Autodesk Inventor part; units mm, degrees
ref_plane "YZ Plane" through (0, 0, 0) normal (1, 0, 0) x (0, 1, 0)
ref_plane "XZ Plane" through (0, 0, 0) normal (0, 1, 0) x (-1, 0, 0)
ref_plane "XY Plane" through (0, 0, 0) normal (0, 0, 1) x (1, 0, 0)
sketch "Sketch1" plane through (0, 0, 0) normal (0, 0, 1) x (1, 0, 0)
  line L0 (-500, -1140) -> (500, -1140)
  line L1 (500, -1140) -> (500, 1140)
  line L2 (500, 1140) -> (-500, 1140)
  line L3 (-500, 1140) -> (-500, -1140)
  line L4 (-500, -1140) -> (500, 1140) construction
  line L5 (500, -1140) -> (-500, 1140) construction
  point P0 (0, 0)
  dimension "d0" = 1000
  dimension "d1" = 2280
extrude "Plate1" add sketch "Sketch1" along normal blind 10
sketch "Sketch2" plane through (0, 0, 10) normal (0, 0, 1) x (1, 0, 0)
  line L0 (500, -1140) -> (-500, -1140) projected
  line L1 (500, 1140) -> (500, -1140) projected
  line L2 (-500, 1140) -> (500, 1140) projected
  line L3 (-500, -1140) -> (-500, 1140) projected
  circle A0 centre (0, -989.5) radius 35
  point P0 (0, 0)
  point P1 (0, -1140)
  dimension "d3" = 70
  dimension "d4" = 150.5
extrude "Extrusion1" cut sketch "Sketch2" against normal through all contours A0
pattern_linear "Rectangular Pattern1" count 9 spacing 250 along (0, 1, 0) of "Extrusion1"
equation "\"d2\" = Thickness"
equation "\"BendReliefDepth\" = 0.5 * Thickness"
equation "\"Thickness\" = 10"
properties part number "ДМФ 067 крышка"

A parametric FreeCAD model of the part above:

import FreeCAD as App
import Part
import Sketcher

V = App.Vector
Q = App.Units.Quantity


def add_polygon(sketch, points):
    """Adds a closed chain of lines whose ends are joined by coincident constraints."""
    first, n = sketch.GeometryCount, len(points)
    for a, b in zip(points, points[1:] + points[:1]):
        sketch.addGeometry(Part.LineSegment(App.Vector(*a, 0), App.Vector(*b, 0)), False)
    for i in range(n):
        sketch.addConstraint(Sketcher.Constraint("Coincident", first + i, 2, first + (i + 1) % n, 1))

doc = App.newDocument("Part")
params = doc.addObject("Spreadsheet::Sheet", "Params")
for row, (alias, value) in enumerate([
    ("sketch1_width", "1000 mm"),
    ("sketch1_height", "2280 mm"),
    ("pad1_length", "10 mm"),
    ("sketch2_diameter", "70 mm"),
    ("linearpattern_pitch", "250 mm"),
], start=1):
    params.set(f"A{row}", alias)
    params.set(f"B{row}", "=" + value)
    params.setAlias(f"B{row}", alias)

body = doc.addObject("PartDesign::Body", "Body")

# Sketch on XY plane
sketch1 = body.newObject("Sketcher::SketchObject", "Sketch")
sketch1.AttachmentSupport = (doc.getObject("XY_Plane"), [""])
sketch1.MapMode = "FlatFace"
add_polygon(sketch1, [(-500, 1140), (-500, -1140), (500, -1140), (500, 1140)])  # lines 0-3
sketch1.addConstraint([
    Sketcher.Constraint("Vertical", 0),
    Sketcher.Constraint("Horizontal", 1),
    Sketcher.Constraint("Vertical", 2),
    Sketcher.Constraint("Horizontal", 3),
    Sketcher.Constraint("Symmetric", 0, 2, 2, 2, -1, 1),
    Sketcher.Constraint("DistanceX", 1, 1, 1, 2, Q("1000 mm")),
    Sketcher.Constraint("DistanceY", 0, 2, 0, 1, Q("2280 mm")),
])
sketch1.setExpression("Constraints[9]", "Params.sketch1_width")
sketch1.setExpression("Constraints[10]", "Params.sketch1_height")
pad1 = body.newObject("PartDesign::Pad", "Pad")
pad1.Profile = sketch1
pad1.setExpression("Length", "Params.pad1_length")

# Sketch on XY plane
sketch2 = body.newObject("Sketcher::SketchObject", "Sketch001")
sketch2.AttachmentSupport = (doc.getObject("XY_Plane"), [""])
sketch2.MapMode = "FlatFace"
sketch2.AttachmentOffset = App.Placement(V(0, 0, 10), App.Rotation())
sketch2.addGeometry(Part.Circle(V(0, -990, 0), V(0, 0, 1), 35), False)
sketch2.addConstraint([
    Sketcher.Constraint("PointOnObject", 0, 3, -2),
    Sketcher.Constraint("Diameter", 0, Q("70 mm")),
    Sketcher.Constraint("DistanceY", 0, 3, -1, 1, Q("989.5 mm")),
])
sketch2.setExpression("Constraints[1]", "Params.sketch2_diameter")
pocket1 = body.newObject("PartDesign::Pocket", "Pocket")
pocket1.Profile = sketch2
pocket1.Type = "ThroughAll"
doc.recompute()

linearpattern = body.newObject("PartDesign::LinearPattern", "LinearPattern")
linearpattern.Originals = [pocket1]
linearpattern.Direction = (doc.getObject("Y_Axis"), [""])
linearpattern.Mode = "offset"
linearpattern.setExpression("Offset", "Params.linearpattern_pitch")
linearpattern.Occurrences = 9
body.Tip = linearpattern

doc.recompute()
